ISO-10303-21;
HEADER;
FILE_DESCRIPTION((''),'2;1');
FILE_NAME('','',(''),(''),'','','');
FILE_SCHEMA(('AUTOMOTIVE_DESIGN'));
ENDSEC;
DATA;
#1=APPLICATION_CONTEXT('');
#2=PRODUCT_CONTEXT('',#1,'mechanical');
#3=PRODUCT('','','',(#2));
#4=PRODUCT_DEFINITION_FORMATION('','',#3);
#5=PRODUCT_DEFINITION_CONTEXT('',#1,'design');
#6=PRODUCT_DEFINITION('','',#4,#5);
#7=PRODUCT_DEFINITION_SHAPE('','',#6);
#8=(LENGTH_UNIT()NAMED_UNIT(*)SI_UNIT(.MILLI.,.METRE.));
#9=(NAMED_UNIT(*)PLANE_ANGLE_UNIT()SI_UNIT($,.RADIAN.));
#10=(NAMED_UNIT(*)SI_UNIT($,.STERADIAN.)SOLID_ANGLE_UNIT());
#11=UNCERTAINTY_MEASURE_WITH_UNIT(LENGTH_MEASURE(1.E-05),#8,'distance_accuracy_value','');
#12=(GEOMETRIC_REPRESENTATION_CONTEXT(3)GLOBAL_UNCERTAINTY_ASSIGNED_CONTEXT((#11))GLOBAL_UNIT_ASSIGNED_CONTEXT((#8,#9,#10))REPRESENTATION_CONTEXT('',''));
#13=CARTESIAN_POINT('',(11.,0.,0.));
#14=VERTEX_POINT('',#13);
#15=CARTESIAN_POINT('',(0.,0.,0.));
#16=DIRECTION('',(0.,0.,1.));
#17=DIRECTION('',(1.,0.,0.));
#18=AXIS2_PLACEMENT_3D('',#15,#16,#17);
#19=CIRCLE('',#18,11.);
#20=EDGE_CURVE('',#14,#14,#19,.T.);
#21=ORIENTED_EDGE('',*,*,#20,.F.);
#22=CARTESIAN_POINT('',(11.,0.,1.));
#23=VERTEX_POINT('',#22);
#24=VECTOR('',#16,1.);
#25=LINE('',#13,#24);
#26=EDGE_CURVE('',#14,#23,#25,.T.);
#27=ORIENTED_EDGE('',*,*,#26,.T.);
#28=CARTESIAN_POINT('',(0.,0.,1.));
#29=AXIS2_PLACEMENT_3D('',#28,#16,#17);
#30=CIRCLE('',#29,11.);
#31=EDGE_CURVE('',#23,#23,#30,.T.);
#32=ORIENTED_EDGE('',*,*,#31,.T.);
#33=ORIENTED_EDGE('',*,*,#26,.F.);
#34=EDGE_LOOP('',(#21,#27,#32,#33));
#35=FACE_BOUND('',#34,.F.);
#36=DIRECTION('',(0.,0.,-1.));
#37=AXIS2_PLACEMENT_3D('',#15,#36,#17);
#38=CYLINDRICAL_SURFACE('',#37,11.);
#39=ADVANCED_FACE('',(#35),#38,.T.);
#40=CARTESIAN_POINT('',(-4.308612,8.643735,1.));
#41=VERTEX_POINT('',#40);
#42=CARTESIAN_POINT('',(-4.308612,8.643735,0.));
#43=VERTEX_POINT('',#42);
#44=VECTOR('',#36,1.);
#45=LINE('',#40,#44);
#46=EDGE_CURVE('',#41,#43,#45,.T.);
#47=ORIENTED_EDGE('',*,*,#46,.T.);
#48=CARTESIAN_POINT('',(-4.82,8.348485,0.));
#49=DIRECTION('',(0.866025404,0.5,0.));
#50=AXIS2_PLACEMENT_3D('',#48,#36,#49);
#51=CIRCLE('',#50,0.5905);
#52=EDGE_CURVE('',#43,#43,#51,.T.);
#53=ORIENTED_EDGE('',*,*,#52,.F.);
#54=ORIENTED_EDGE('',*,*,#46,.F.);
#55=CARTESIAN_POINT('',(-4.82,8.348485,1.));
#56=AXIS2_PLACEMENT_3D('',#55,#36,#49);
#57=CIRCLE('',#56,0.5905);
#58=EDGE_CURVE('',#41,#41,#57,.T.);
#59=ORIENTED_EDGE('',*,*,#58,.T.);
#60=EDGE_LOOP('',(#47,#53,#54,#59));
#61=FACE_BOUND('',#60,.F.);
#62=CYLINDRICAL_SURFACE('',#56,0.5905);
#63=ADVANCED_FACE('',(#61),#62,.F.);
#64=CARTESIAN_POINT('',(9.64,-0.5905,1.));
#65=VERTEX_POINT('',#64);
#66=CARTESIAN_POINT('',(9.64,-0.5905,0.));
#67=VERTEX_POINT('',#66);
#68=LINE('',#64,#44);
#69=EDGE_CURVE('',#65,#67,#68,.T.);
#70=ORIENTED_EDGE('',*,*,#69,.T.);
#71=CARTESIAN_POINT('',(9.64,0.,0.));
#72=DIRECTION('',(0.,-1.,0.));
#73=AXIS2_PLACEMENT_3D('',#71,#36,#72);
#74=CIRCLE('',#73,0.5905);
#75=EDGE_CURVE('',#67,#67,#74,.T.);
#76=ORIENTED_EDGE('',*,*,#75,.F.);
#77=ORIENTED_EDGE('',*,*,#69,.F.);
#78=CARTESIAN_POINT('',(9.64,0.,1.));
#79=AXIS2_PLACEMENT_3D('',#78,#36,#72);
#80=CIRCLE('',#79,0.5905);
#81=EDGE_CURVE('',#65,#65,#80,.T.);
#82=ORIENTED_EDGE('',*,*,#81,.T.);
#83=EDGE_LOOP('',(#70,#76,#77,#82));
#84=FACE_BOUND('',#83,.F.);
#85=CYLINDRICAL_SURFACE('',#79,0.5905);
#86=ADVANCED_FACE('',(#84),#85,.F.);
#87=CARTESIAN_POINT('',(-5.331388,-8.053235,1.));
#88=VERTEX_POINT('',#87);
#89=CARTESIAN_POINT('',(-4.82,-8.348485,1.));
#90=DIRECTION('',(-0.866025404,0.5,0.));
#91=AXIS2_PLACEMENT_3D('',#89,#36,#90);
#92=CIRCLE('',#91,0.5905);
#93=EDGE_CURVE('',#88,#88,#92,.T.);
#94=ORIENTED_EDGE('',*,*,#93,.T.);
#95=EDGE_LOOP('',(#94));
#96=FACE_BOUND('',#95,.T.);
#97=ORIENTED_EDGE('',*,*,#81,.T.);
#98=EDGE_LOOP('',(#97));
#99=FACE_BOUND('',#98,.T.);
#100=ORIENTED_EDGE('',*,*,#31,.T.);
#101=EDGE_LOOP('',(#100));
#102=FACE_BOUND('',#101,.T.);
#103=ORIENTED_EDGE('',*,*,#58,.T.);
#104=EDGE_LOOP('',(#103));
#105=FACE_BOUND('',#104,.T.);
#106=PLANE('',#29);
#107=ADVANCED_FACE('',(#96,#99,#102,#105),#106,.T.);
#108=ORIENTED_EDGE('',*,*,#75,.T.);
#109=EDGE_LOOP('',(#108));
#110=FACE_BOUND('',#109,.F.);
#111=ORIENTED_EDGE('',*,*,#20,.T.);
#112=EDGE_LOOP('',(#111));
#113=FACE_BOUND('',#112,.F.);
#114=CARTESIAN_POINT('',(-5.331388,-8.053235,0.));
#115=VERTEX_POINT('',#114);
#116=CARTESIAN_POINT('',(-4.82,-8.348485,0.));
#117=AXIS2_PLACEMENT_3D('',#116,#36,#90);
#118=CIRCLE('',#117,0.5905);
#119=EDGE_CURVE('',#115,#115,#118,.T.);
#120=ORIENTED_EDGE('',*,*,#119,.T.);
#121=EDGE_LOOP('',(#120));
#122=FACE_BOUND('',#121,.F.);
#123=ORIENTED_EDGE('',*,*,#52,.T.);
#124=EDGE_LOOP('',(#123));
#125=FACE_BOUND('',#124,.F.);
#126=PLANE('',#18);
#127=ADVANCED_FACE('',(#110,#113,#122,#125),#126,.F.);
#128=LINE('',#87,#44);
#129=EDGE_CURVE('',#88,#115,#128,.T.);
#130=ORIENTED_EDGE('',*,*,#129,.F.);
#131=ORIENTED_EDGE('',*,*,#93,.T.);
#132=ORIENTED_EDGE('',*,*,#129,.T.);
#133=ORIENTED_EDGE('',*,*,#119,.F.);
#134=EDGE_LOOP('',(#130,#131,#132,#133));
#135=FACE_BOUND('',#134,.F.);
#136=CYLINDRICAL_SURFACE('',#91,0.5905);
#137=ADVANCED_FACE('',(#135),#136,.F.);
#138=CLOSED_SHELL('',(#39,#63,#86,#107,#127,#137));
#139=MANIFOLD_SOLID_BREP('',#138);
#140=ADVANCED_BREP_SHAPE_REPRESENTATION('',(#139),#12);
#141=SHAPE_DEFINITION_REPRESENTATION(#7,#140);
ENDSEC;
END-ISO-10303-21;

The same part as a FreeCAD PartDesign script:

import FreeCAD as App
import Part
import Sketcher
from FreeCAD import Vector

doc = App.newDocument("Part")
body = doc.addObject("PartDesign::Body", "Body")

# Sketch on XY plane
sketch1 = body.newObject("Sketcher::SketchObject", "Sketch")
sketch1.AttachmentSupport = (doc.getObject("XY_Plane"), [""])
sketch1.MapMode = "FlatFace"
sketch1.addGeometry(Part.Circle(Vector(0, 0, 0), Vector(0, 0, 1), 11), False)
sketch1.addConstraint(Sketcher.Constraint("Coincident", 0, 3, -1, 1))
sketch1.addConstraint(Sketcher.Constraint("Diameter", 0, 22.0))
pad1 = body.newObject("PartDesign::Pad", "Pad")
pad1.Profile = sketch1
pad1.Length = 1

# Sketch on XY plane
sketch2 = body.newObject("Sketcher::SketchObject", "Sketch001")
sketch2.AttachmentSupport = (doc.getObject("XY_Plane"), [""])
sketch2.MapMode = "FlatFace"
sketch2.AttachmentOffset = App.Placement(Vector(0, 0, 1), App.Rotation())
sketch2.addGeometry(Part.Circle(Vector(9.6, 0, 0), Vector(0, 0, 1), 0.6), False)
sketch2.addConstraint(Sketcher.Constraint("PointOnObject", 0, 3, -1))
sketch2.addConstraint(Sketcher.Constraint("Diameter", 0, 1.181))
sketch2.addConstraint(Sketcher.Constraint("DistanceX", -1, 1, 0, 3, 9.64))
doc.recompute()
hole = body.newObject("PartDesign::Hole", "Hole")
hole.Profile = sketch2
hole.ThreadType = "None"
hole.Diameter = 1.181
hole.DepthType = "Dimension"
hole.Depth = 8
hole.DrillPoint = "Flat"
doc.recompute()

polarpattern = body.newObject("PartDesign::PolarPattern", "PolarPattern")
polarpattern.Originals = [hole]
polarpattern.Axis = (doc.getObject("Z_Axis"), [""])
polarpattern.Angle = 360
polarpattern.Occurrences = 3
body.Tip = polarpattern

doc.recompute()
